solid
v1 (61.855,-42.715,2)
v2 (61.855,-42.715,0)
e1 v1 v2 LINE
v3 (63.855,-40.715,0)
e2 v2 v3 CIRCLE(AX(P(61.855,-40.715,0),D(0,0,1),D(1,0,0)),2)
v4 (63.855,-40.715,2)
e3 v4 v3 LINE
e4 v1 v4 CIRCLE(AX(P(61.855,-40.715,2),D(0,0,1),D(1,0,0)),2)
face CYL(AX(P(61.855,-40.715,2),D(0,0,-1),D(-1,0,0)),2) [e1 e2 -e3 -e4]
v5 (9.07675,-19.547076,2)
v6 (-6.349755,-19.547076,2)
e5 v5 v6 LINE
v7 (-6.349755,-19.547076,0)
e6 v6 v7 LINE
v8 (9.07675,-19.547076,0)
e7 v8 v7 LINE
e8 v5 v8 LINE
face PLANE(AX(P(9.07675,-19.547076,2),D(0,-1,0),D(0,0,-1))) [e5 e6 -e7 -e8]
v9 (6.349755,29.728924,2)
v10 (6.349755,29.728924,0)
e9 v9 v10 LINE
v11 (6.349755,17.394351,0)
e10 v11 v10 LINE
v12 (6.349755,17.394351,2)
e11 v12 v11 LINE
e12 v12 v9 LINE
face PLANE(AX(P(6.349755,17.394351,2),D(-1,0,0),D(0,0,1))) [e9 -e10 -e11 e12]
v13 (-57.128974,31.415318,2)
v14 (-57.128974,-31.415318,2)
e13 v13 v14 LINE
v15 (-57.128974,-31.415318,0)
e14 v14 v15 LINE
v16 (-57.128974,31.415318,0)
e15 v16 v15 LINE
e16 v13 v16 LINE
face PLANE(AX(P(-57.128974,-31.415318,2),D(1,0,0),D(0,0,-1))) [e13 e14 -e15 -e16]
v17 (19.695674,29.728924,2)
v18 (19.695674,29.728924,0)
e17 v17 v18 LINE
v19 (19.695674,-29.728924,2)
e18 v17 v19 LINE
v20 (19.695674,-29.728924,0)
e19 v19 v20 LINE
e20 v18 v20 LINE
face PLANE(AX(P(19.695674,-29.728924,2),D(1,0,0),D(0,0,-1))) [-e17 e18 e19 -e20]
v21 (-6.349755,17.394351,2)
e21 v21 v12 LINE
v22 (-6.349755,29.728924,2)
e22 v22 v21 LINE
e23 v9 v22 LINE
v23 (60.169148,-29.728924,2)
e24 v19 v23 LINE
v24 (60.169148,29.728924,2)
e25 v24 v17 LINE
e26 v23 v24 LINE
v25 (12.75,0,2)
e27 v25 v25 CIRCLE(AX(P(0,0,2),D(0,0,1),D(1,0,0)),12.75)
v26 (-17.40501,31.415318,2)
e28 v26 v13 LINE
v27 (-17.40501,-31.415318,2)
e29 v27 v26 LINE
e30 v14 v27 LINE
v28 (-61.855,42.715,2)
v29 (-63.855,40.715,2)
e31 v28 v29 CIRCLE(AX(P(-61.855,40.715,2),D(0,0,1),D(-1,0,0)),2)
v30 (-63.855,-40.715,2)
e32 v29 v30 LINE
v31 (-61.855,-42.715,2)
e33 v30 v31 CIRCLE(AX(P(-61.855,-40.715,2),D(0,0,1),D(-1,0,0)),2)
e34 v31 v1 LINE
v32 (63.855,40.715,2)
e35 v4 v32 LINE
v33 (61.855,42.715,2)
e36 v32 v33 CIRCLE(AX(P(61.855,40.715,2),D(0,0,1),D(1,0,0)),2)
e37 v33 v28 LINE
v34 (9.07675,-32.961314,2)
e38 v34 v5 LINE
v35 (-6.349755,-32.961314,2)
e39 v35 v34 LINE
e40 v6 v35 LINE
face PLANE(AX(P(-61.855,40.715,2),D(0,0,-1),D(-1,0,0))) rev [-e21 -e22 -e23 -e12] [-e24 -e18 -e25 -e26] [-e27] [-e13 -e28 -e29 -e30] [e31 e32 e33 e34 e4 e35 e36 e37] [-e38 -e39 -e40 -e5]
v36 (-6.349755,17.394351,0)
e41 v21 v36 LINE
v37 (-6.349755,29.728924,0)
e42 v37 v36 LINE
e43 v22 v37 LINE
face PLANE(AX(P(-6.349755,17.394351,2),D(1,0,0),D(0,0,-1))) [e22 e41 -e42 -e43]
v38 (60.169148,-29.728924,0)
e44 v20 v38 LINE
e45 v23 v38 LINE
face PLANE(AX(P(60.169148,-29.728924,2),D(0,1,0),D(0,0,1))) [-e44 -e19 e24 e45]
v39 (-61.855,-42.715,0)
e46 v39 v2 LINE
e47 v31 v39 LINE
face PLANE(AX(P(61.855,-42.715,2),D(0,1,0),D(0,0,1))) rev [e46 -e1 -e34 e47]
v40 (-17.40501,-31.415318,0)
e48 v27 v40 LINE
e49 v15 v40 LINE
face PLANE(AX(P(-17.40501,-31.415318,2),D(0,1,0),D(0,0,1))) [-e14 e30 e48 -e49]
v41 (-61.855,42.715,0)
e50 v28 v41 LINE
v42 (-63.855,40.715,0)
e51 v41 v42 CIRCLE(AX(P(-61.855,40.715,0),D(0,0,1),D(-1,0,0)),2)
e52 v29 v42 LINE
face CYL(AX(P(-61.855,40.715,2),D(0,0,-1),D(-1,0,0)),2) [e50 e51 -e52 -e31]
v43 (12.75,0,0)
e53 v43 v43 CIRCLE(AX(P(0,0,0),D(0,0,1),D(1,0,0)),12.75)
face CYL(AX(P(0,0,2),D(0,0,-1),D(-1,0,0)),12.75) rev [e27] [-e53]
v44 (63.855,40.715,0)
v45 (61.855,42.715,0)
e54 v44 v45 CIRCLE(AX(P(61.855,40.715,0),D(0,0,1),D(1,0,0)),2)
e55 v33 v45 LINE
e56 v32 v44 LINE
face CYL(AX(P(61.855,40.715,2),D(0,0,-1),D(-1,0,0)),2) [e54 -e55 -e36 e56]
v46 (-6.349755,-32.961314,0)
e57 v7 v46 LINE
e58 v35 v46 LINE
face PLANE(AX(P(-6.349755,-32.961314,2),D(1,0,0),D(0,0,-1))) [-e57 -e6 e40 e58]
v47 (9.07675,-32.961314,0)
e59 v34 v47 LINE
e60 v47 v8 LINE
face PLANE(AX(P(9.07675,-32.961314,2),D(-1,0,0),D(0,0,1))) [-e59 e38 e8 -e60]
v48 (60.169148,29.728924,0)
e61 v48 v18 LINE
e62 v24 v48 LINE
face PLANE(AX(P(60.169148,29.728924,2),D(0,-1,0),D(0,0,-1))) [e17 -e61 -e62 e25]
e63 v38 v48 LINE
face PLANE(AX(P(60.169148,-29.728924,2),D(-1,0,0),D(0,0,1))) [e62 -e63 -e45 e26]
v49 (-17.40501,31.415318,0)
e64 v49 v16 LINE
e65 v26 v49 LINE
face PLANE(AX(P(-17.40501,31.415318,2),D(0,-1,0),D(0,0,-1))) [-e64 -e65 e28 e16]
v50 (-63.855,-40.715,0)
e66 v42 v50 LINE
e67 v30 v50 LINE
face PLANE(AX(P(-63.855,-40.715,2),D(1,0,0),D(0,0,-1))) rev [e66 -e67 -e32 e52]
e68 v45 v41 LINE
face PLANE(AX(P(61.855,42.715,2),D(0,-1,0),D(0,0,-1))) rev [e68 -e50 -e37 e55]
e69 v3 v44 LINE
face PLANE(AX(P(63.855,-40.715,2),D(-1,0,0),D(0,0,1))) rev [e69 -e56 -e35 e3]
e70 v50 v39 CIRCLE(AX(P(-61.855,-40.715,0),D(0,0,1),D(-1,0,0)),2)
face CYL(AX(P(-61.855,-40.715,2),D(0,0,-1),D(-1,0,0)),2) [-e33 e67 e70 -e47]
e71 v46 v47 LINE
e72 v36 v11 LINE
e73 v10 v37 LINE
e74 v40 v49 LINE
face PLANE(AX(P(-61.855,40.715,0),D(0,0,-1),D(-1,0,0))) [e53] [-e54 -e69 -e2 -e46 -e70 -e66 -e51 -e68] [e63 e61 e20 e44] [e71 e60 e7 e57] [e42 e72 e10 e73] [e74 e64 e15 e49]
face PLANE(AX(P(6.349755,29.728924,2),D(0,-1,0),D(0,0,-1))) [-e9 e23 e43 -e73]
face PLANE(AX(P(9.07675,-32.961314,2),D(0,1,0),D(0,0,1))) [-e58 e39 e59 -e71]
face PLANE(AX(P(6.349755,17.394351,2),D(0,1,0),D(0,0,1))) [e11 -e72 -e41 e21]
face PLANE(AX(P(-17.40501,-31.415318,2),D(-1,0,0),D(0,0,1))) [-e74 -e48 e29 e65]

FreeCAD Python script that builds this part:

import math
import FreeCAD as App
import Part
import Sketcher
Q = App.Units.Quantity

doc = App.newDocument("Part")
body = doc.addObject("PartDesign::Body", "Body")

# Sketch on XY plane
sketch1 = doc.addObject("Sketcher::SketchObject", "Sketch")
body.addObject(sketch1)
sketch1.AttachmentSupport = (doc.XY_Plane, [""])
sketch1.MapMode = "FlatFace"
sketch1.addGeometry([
    Part.LineSegment(App.Vector(-61.9, -42.7, 0), App.Vector(61.9, -42.7, 0)),  # 0
    Part.ArcOfCircle(Part.Circle(App.Vector(61.9, -40.7, 0), App.Vector(0, 0, 1), 2), math.radians(-90), math.radians(0)),  # 1
    Part.LineSegment(App.Vector(63.9, -40.7, 0), App.Vector(63.9, 40.7, 0)),  # 2
    Part.ArcOfCircle(Part.Circle(App.Vector(61.9, 40.7, 0), App.Vector(0, 0, 1), 2), math.radians(0), math.radians(90)),  # 3
    Part.LineSegment(App.Vector(61.9, 42.7, 0), App.Vector(-61.9, 42.7, 0)),  # 4
    Part.ArcOfCircle(Part.Circle(App.Vector(-61.9, 40.7, 0), App.Vector(0, 0, 1), 2), math.radians(90), math.radians(180)),  # 5
    Part.LineSegment(App.Vector(-63.9, 40.7, 0), App.Vector(-63.9, -40.7, 0)),  # 6
    Part.ArcOfCircle(Part.Circle(App.Vector(-61.9, -40.7, 0), App.Vector(0, 0, 1), 2), math.radians(-180), math.radians(-90)),  # 7
    Part.LineSegment(App.Vector(-6.3, -33, 0), App.Vector(-6.3, -19.5, 0)),  # 8
    Part.LineSegment(App.Vector(-6.3, -19.5, 0), App.Vector(9.1, -19.5, 0)),  # 9
    Part.LineSegment(App.Vector(9.1, -19.5, 0), App.Vector(9.1, -33, 0)),  # 10
    Part.LineSegment(App.Vector(9.1, -33, 0), App.Vector(-6.3, -33, 0)),  # 11
    Part.LineSegment(App.Vector(19.7, -29.7, 0), App.Vector(19.7, 29.7, 0)),  # 12
    Part.LineSegment(App.Vector(19.7, 29.7, 0), App.Vector(60.2, 29.7, 0)),  # 13
    Part.LineSegment(App.Vector(60.2, 29.7, 0), App.Vector(60.2, -29.7, 0)),  # 14
    Part.LineSegment(App.Vector(60.2, -29.7, 0), App.Vector(19.7, -29.7, 0)),  # 15
    Part.Circle(App.Vector(0, 0, 0), App.Vector(0, 0, 1), 12.8),  # 16
    Part.LineSegment(App.Vector(-57.1, -31.4, 0), App.Vector(-57.1, 31.4, 0)),  # 17
    Part.LineSegment(App.Vector(-57.1, 31.4, 0), App.Vector(-17.4, 31.4, 0)),  # 18
    Part.LineSegment(App.Vector(-17.4, 31.4, 0), App.Vector(-17.4, -31.4, 0)),  # 19
    Part.LineSegment(App.Vector(-17.4, -31.4, 0), App.Vector(-57.1, -31.4, 0)),  # 20
    Part.LineSegment(App.Vector(-6.3, 17.4, 0), App.Vector(-6.3, 29.7, 0)),  # 21
    Part.LineSegment(App.Vector(-6.3, 29.7, 0), App.Vector(6.3, 29.7, 0)),  # 22
    Part.LineSegment(App.Vector(6.3, 29.7, 0), App.Vector(6.3, 17.4, 0)),  # 23
    Part.LineSegment(App.Vector(6.3, 17.4, 0), App.Vector(-6.3, 17.4, 0)),  # 24
], False)
sketch1.addConstraint([
    Sketcher.Constraint("Tangent", 0, 2, 1, 1),
    Sketcher.Constraint("Tangent", 1, 2, 2, 1),
    Sketcher.Constraint("Tangent", 2, 2, 3, 1),
    Sketcher.Constraint("Tangent", 3, 2, 4, 1),
    Sketcher.Constraint("Tangent", 4, 2, 5, 1),
    Sketcher.Constraint("Tangent", 5, 2, 6, 1),
    Sketcher.Constraint("Tangent", 6, 2, 7, 1),
    Sketcher.Constraint("Tangent", 7, 2, 0, 1),
    Sketcher.Constraint("Coincident", 8, 2, 9, 1),
    Sketcher.Constraint("Coincident", 9, 2, 10, 1),
    Sketcher.Constraint("Coincident", 10, 2, 11, 1),
    Sketcher.Constraint("Coincident", 11, 2, 8, 1),
    Sketcher.Constraint("Coincident", 12, 2, 13, 1),
    Sketcher.Constraint("Coincident", 13, 2, 14, 1),
    Sketcher.Constraint("Coincident", 14, 2, 15, 1),
    Sketcher.Constraint("Coincident", 15, 2, 12, 1),
    Sketcher.Constraint("Coincident", 17, 2, 18, 1),
    Sketcher.Constraint("Coincident", 18, 2, 19, 1),
    Sketcher.Constraint("Coincident", 19, 2, 20, 1),
    Sketcher.Constraint("Coincident", 20, 2, 17, 1),
    Sketcher.Constraint("Coincident", 21, 2, 22, 1),
    Sketcher.Constraint("Coincident", 22, 2, 23, 1),
    Sketcher.Constraint("Coincident", 23, 2, 24, 1),
    Sketcher.Constraint("Coincident", 24, 2, 21, 1),
    Sketcher.Constraint("Horizontal", 0),
    Sketcher.Constraint("Vertical", 2),
    Sketcher.Constraint("Horizontal", 4),
    Sketcher.Constraint("Vertical", 6),
    Sketcher.Constraint("Vertical", 8),
    Sketcher.Constraint("Horizontal", 9),
    Sketcher.Constraint("Vertical", 10),
    Sketcher.Constraint("Horizontal", 11),
    Sketcher.Constraint("Vertical", 12),
    Sketcher.Constraint("Horizontal", 13),
    Sketcher.Constraint("Vertical", 14),
    Sketcher.Constraint("Horizontal", 15),
    Sketcher.Constraint("Vertical", 17),
    Sketcher.Constraint("Horizontal", 18),
    Sketcher.Constraint("Vertical", 19),
    Sketcher.Constraint("Horizontal", 20),
    Sketcher.Constraint("Vertical", 21),
    Sketcher.Constraint("Horizontal", 22),
    Sketcher.Constraint("Vertical", 23),
    Sketcher.Constraint("Horizontal", 24),
    Sketcher.Constraint("Coincident", 16, 3, -1, 1),
    Sketcher.Constraint("Equal", 1, 3),
    Sketcher.Constraint("Equal", 3, 5),
    Sketcher.Constraint("Equal", 5, 7),
    Sketcher.Constraint("Symmetric", 1, 3, 5, 3, -1, 1),
    Sketcher.Constraint("Horizontal", 13, 2, 21, 2),
    Sketcher.Constraint("Vertical", 11, 2, 21, 2),
    Sketcher.Constraint("Radius", 1, Q("2 mm")),
    Sketcher.Constraint("Diameter", 16, Q("25.5 mm")),
    Sketcher.Constraint("DistanceX", 0, 1, 0, 2, Q("123.71 mm")),
    Sketcher.Constraint("DistanceY", 2, 1, 2, 2, Q("81.43 mm")),
    Sketcher.Constraint("DistanceY", 9, 2, 12, 2, Q("49.275999 mm")),
    Sketcher.Constraint("DistanceX", 22, 1, 22, 2, Q("12.69951 mm")),
    Sketcher.Constraint("DistanceY", 8, 1, 8, 2, Q("13.414238 mm")),
    Sketcher.Constraint("DistanceX", 10, 2, 14, 2, Q("51.092398 mm")),
    Sketcher.Constraint("DistanceX", 9, 1, 9, 2, Q("15.426505 mm")),
    Sketcher.Constraint("DistanceX", 13, 1, 13, 2, Q("40.473473 mm")),
    Sketcher.Constraint("DistanceX", 18, 1, 18, 2, Q("39.723965 mm")),
    Sketcher.Constraint("DistanceY", 12, 1, 12, 2, Q("59.457847 mm")),
    Sketcher.Constraint("DistanceY", 17, 1, 17, 2, Q("62.830637 mm")),
    Sketcher.Constraint("DistanceY", 21, 1, 21, 2, Q("12.334573 mm")),
    Sketcher.Constraint("DistanceX", -1, 1, 9, 2, Q("9.07675 mm")),
    Sketcher.Constraint("DistanceY", -1, 1, 17, 2, Q("31.415318 mm")),
    Sketcher.Constraint("DistanceX", 18, 2, -1, 1, Q("17.40501 mm")),
    Sketcher.Constraint("DistanceY", -1, 1, 23, 2, Q("17.394351 mm")),
])
pad1 = doc.addObject("PartDesign::Pad", "Pad")
body.addObject(pad1)
pad1.Profile = sketch1
pad1.Length = 2

doc.recompute()
